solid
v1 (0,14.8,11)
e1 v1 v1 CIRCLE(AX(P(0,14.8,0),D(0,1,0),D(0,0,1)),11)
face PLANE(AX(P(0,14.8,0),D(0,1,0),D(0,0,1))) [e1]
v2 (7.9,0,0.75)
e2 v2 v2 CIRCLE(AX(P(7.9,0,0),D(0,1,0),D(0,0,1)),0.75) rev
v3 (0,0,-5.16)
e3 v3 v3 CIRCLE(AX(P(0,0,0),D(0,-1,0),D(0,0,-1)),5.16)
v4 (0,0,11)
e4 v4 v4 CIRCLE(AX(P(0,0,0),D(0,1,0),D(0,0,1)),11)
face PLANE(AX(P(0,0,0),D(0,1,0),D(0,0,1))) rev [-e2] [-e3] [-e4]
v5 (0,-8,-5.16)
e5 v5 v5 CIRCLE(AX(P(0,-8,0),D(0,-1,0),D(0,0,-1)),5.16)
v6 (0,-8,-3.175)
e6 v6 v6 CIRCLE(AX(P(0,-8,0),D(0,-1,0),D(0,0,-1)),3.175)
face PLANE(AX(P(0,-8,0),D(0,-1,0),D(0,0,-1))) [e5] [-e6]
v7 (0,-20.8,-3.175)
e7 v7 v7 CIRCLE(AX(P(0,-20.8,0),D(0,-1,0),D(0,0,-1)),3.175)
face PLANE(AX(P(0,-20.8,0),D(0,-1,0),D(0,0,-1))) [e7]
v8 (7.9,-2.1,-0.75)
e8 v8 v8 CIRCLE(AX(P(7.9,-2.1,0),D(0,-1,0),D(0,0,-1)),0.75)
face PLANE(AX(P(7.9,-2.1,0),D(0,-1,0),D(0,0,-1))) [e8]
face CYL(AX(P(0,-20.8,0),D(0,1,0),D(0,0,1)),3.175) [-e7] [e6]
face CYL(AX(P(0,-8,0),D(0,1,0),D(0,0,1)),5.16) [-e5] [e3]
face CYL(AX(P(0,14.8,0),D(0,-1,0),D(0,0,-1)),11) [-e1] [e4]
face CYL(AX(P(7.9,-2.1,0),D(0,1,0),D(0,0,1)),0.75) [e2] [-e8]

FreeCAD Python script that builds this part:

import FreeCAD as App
import Part
import Sketcher

doc = App.newDocument("Part")
params = doc.addObject("Spreadsheet::Sheet", "Params")
for row, (alias, value) in enumerate([
    ("sketch1_diameter", "22 mm"),
    ("pad1_length", "14.8 mm"),
    ("sketch2_diameter", "10.32 mm"),
    ("pad2_length", "8 mm"),
    ("sketch3_diameter", "6.35 mm"),
    ("pad3_length", "12.8 mm"),
    ("sketch4_diameter", "1.5 mm"),
    ("pad4_length", "2.1 mm"),
], start=1):
    params.set(f"A{row}", alias)
    params.set(f"B{row}", "=" + value)
    params.setAlias(f"B{row}", alias)

body = doc.addObject("PartDesign::Body", "Body")

# Sketch on XZ plane
sketch1 = doc.addObject("Sketcher::SketchObject", "Sketch")
body.addObject(sketch1)
sketch1.AttachmentSupport = (doc.XZ_Plane, [""])
sketch1.MapMode = "FlatFace"
sketch1.addGeometry(Part.Circle(App.Vector(0, 0, 0), App.Vector(0, 0, 1), 11), False)
sketch1.addConstraint([
    Sketcher.Constraint("Coincident", 0, 3, -1, 1),
    Sketcher.Constraint("Diameter", 0, 22.0),
])
sketch1.setExpression("Constraints[1]", "Params.sketch1_diameter")
pad1 = doc.addObject("PartDesign::Pad", "Pad")
body.addObject(pad1)
pad1.Profile = sketch1
pad1.setExpression("Length", "Params.pad1_length")
pad1.Reversed = True

# Sketch on XZ plane
sketch2 = doc.addObject("Sketcher::SketchObject", "Sketch001")
body.addObject(sketch2)
sketch2.AttachmentSupport = (doc.XZ_Plane, [""])
sketch2.MapMode = "FlatFace"
sketch2.addGeometry(Part.Circle(App.Vector(0, 0, 0), App.Vector(0, 0, 1), 5), False)
sketch2.addConstraint([
    Sketcher.Constraint("Coincident", 0, 3, -1, 1),
    Sketcher.Constraint("Diameter", 0, 10.32),
])
sketch2.setExpression("Constraints[1]", "Params.sketch2_diameter")
pad2 = doc.addObject("PartDesign::Pad", "Pad001")
body.addObject(pad2)
pad2.Profile = sketch2
pad2.setExpression("Length", "Params.pad2_length")

# Sketch on XZ plane
sketch3 = doc.addObject("Sketcher::SketchObject", "Sketch002")
body.addObject(sketch3)
sketch3.AttachmentSupport = (doc.XZ_Plane, [""])
sketch3.MapMode = "FlatFace"
sketch3.AttachmentOffset = App.Placement(App.Vector(0, 0, 8), App.Rotation())
sketch3.addGeometry(Part.Circle(App.Vector(0, 0, 0), App.Vector(0, 0, 1), 3.2), False)
sketch3.addConstraint([
    Sketcher.Constraint("Coincident", 0, 3, -1, 1),
    Sketcher.Constraint("Diameter", 0, 6.35),
])
sketch3.setExpression("Constraints[1]", "Params.sketch3_diameter")
pad3 = doc.addObject("PartDesign::Pad", "Pad002")
body.addObject(pad3)
pad3.Profile = sketch3
pad3.setExpression("Length", "Params.pad3_length")

# Sketch on XZ plane
sketch4 = doc.addObject("Sketcher::SketchObject", "Sketch003")
body.addObject(sketch4)
sketch4.AttachmentSupport = (doc.XZ_Plane, [""])
sketch4.MapMode = "FlatFace"
sketch4.addGeometry(Part.Circle(App.Vector(7.9, 0, 0), App.Vector(0, 0, 1), 0.8), False)
sketch4.addConstraint([
    Sketcher.Constraint("PointOnObject", 0, 3, -1),
    Sketcher.Constraint("Diameter", 0, 1.5),
    Sketcher.Constraint("DistanceX", -1, 1, 0, 3, 7.9),
])
sketch4.setExpression("Constraints[1]", "Params.sketch4_diameter")
pad4 = doc.addObject("PartDesign::Pad", "Pad003")
body.addObject(pad4)
pad4.Profile = sketch4
pad4.setExpression("Length", "Params.pad4_length")

doc.recompute()
